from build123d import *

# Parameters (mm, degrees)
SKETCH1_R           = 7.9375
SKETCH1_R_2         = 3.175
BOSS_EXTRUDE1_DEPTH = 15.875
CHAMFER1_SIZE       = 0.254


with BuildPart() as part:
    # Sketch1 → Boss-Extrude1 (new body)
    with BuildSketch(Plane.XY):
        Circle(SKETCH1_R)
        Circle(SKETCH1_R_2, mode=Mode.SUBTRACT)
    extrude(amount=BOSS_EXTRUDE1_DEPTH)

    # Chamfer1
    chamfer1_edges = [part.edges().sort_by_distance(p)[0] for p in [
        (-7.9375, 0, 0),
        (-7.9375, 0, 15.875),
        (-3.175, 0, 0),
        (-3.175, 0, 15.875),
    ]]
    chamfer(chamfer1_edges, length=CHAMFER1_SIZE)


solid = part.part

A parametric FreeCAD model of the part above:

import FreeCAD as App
import Part
import Sketcher
Q = App.Units.Quantity


def edges_at(feature, points):
    """Names of the edges that pass closest to the given points."""
    edges = feature.Shape.Edges
    near = lambda p: min(range(len(edges)), key=lambda i: edges[i].distToShape(Part.Vertex(*p))[0])
    return sorted({f"Edge{near(p) + 1}" for p in points})

doc = App.newDocument("Part")
params = doc.addObject("Spreadsheet::Sheet", "Params")
for row, (alias, value) in enumerate([
    ("sketch1_diameter", "0.25 in"),
    ("sketch1_diameter2", "0.625 in"),
    ("pad1_length", "0.625 in"),
    ("chamfer_size", "0.01 in"),
], start=1):
    params.set(f"A{row}", alias)
    params.set(f"B{row}", "=" + value)
    params.setAlias(f"B{row}", alias)

body = doc.addObject("PartDesign::Body", "Body")

# Sketch on XY plane
sketch1 = body.newObject("Sketcher::SketchObject", "Sketch")
sketch1.AttachmentSupport = (doc.getObject("XY_Plane"), [""])
sketch1.MapMode = "FlatFace"
sketch1.addGeometry([
    Part.Circle(App.Vector(0, 0, 0), App.Vector(0, 0, 1), 7.9375),
    Part.Circle(App.Vector(0, 0, 0), App.Vector(0, 0, 1), 3.175),
], False)
sketch1.addConstraint([
    Sketcher.Constraint("Coincident", 0, 3, -1, 1),
    Sketcher.Constraint("Coincident", 1, 3, -1, 1),
    Sketcher.Constraint("Diameter", 1, Q("0.25 in")),
    Sketcher.Constraint("Diameter", 0, Q("0.625 in")),
])
sketch1.setExpression("Constraints[2]", "Params.sketch1_diameter")
sketch1.setExpression("Constraints[3]", "Params.sketch1_diameter2")
pad1 = body.newObject("PartDesign::Pad", "Pad")
pad1.Profile = sketch1
pad1.setExpression("Length", "Params.pad1_length")
doc.recompute()

chamfer = body.newObject("PartDesign::Chamfer", "Chamfer")
chamfer.Base = (pad1, edges_at(pad1, [
    (-7.938, 0, 0),
    (-7.938, 0, 15.875),
    (-3.175, 0, 0),
    (-3.175, 0, 15.875),
]))
chamfer.setExpression("Size", "Params.chamfer_size")

doc.recompute()
